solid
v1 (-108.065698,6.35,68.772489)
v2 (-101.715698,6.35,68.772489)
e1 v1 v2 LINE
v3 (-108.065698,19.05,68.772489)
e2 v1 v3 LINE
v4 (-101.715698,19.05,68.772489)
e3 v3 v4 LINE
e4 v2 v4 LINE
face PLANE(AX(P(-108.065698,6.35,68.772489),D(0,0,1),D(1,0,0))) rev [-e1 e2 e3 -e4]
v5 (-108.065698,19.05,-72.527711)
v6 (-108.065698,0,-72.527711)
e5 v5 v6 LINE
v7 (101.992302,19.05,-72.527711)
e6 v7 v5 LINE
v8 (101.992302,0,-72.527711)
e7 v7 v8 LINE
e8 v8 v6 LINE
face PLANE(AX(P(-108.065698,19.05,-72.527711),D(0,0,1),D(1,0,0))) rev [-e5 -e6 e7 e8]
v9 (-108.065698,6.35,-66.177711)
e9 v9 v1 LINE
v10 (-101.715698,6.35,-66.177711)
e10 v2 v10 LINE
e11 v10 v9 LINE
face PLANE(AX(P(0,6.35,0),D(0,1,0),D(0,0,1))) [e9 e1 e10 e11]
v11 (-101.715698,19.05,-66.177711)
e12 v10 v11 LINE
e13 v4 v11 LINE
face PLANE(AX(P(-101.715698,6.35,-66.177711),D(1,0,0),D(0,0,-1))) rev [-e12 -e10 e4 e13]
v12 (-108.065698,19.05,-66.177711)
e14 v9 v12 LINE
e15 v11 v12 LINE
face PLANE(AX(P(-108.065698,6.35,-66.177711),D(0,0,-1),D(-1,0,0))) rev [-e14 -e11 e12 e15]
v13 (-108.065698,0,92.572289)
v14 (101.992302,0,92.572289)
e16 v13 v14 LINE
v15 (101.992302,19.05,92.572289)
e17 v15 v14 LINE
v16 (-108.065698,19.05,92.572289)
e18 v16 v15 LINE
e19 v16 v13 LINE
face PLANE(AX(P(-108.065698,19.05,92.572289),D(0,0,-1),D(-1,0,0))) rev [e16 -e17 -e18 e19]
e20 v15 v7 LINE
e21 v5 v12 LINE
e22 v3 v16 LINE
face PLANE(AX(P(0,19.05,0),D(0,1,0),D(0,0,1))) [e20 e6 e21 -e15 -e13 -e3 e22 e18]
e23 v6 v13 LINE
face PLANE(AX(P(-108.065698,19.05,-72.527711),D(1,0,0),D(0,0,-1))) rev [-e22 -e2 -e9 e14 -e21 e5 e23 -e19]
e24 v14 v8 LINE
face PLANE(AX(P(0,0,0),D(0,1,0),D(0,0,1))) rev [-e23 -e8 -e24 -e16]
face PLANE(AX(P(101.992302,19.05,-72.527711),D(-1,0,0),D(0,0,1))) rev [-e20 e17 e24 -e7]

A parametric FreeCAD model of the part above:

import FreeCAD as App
import Part
import Sketcher
from FreeCAD import Vector
Q = App.Units.Quantity

doc = App.newDocument("Part")
body = doc.addObject("PartDesign::Body", "Body")

# Sketch on XZ plane
sketch1 = body.newObject("Sketcher::SketchObject", "Sketch")
sketch1.AttachmentSupport = (doc.getObject("XZ_Plane"), [""])
sketch1.MapMode = "FlatFace"
sketch1.addGeometry([
    Part.LineSegment(Vector(-108, -73, 0), Vector(-108, 93, 0)),
    Part.LineSegment(Vector(-108, 93, 0), Vector(102, 93, 0)),
    Part.LineSegment(Vector(102, 93, 0), Vector(102, -73, 0)),
    Part.LineSegment(Vector(102, -73, 0), Vector(-108, -73, 0)),
], False)
sketch1.addConstraint([
    Sketcher.Constraint("Coincident", 0, 2, 1, 1),
    Sketcher.Constraint("Coincident", 1, 2, 2, 1),
    Sketcher.Constraint("Coincident", 2, 2, 3, 1),
    Sketcher.Constraint("Coincident", 3, 2, 0, 1),
    Sketcher.Constraint("Vertical", 0),
    Sketcher.Constraint("Horizontal", 1),
    Sketcher.Constraint("Vertical", 2),
    Sketcher.Constraint("Horizontal", 3),
    Sketcher.Constraint("DistanceY", 0, 1, 0, 2, Q("6.5 in")),
    Sketcher.Constraint("DistanceX", 1, 1, 1, 2, Q("8.27 in")),
    Sketcher.Constraint("DistanceX", 0, 2, -1, 1, 108.065698),
    Sketcher.Constraint("DistanceY", -1, 1, 0, 2, 92.572289),
])
pad1 = body.newObject("PartDesign::Pad", "Pad")
pad1.Profile = sketch1
pad1.Length = Q("0.75 in")
pad1.Reversed = True

# Sketch on XZ plane
sketch2 = body.newObject("Sketcher::SketchObject", "Sketch001")
sketch2.AttachmentSupport = (doc.getObject("XZ_Plane"), [""])
sketch2.MapMode = "FlatFace"
sketch2.AttachmentOffset = App.Placement(Vector(0, 0, -0.75 * 25.4), App.Rotation())
sketch2.addGeometry([
    Part.LineSegment(Vector(-108, -66, 0), Vector(-108, 69, 0)),
    Part.LineSegment(Vector(-108, 69, 0), Vector(-102, 69, 0)),
    Part.LineSegment(Vector(-102, 69, 0), Vector(-102, -66, 0)),
    Part.LineSegment(Vector(-102, -66, 0), Vector(-108, -66, 0)),
], False)
sketch2.addConstraint([
    Sketcher.Constraint("Coincident", 0, 2, 1, 1),
    Sketcher.Constraint("Coincident", 1, 2, 2, 1),
    Sketcher.Constraint("Coincident", 2, 2, 3, 1),
    Sketcher.Constraint("Coincident", 3, 2, 0, 1),
    Sketcher.Constraint("Vertical", 0),
    Sketcher.Constraint("Horizontal", 1),
    Sketcher.Constraint("Vertical", 2),
    Sketcher.Constraint("Horizontal", 3),
    Sketcher.Constraint("DistanceX", 1, 1, 1, 2, Q("0.25 in")),
    Sketcher.Constraint("DistanceY", 0, 1, 0, 2, Q("5.313 in")),
    Sketcher.Constraint("DistanceX", 0, 2, -1, 1, 108.065698),
    Sketcher.Constraint("DistanceY", -1, 1, 0, 2, 68.772489),
])
pocket1 = body.newObject("PartDesign::Pocket", "Pocket")
pocket1.Profile = sketch2
pocket1.Length = Q("0.5 in")
pocket1.Reversed = True

doc.recompute()
